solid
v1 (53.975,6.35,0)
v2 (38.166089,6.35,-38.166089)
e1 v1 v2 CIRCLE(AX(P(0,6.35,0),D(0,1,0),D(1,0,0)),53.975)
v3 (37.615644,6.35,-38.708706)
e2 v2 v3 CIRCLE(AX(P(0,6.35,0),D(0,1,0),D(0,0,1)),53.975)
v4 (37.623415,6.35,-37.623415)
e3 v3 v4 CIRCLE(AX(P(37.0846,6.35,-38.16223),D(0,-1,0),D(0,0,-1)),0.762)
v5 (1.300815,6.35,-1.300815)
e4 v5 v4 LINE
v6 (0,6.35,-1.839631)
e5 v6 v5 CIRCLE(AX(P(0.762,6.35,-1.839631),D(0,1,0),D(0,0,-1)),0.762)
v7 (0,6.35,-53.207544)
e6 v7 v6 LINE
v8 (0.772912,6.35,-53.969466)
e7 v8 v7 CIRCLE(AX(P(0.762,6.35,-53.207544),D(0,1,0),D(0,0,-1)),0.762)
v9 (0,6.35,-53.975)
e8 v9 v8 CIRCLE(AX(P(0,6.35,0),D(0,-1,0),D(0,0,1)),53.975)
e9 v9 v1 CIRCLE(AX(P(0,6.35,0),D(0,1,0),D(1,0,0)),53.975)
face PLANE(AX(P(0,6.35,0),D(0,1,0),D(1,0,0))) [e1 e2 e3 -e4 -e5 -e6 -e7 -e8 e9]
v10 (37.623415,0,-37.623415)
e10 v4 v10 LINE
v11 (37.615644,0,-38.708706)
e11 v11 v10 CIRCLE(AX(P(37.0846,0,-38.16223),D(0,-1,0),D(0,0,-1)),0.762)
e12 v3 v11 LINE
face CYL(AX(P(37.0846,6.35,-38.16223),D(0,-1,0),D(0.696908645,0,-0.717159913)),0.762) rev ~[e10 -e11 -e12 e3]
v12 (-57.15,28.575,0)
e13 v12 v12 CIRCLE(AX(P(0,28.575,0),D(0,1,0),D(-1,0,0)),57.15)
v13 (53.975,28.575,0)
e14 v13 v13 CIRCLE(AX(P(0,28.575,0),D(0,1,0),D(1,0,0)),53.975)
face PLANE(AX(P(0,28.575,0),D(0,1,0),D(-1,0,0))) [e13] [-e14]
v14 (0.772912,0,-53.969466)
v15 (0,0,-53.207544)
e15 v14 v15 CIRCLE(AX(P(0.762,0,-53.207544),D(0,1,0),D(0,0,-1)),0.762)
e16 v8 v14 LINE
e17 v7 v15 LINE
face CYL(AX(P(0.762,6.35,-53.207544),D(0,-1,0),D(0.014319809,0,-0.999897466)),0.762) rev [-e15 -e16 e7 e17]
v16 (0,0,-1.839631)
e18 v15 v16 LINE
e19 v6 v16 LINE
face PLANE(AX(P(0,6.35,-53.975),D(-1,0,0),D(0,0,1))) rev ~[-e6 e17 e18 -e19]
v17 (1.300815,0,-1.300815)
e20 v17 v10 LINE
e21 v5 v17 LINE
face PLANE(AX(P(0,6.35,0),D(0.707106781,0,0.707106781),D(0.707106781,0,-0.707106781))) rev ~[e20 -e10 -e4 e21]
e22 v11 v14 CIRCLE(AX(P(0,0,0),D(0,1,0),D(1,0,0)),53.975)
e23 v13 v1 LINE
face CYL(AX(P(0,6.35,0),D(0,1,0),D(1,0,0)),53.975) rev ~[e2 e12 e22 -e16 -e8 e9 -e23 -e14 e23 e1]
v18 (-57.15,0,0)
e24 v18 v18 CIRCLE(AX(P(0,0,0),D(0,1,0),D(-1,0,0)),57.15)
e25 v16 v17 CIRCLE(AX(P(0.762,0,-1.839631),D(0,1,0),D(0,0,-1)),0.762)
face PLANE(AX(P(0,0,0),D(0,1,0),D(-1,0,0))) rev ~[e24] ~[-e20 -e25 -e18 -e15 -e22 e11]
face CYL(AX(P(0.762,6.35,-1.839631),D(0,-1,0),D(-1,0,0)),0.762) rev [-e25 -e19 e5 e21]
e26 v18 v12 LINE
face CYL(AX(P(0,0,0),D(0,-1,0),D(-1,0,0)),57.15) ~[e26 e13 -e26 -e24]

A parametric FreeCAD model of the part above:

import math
import FreeCAD as App
import Part
import Sketcher
Q = App.Units.Quantity


def edges_at(feature, points):
    """Names of the edges that pass closest to the given points."""
    edges = feature.Shape.Edges
    near = lambda p: min(range(len(edges)), key=lambda i: edges[i].distToShape(Part.Vertex(*p))[0])
    return sorted({f"Edge{near(p) + 1}" for p in points})

doc = App.newDocument("Part")
body = doc.addObject("PartDesign::Body", "Body")

# Sketch on XZ plane
sketch1 = doc.addObject("Sketcher::SketchObject", "Sketch")
body.addObject(sketch1)
sketch1.AttachmentSupport = (doc.XZ_Plane, [""])
sketch1.MapMode = "FlatFace"
sketch1.addGeometry(Part.Circle(App.Vector(0, 0, 0), App.Vector(0, 0, 1), 57.15), False)
sketch1.addConstraint([
    Sketcher.Constraint("Coincident", 0, 3, -1, 1),
    Sketcher.Constraint("Diameter", 0, Q("4.5 in")),
])
pad1 = doc.addObject("PartDesign::Pad", "Pad")
body.addObject(pad1)
pad1.Profile = sketch1
pad1.Length = Q("1.125 in")
pad1.Reversed = True

# Sketch on XZ plane
sketch2 = doc.addObject("Sketcher::SketchObject", "Sketch001")
body.addObject(sketch2)
sketch2.AttachmentSupport = (doc.XZ_Plane, [""])
sketch2.MapMode = "FlatFace"
sketch2.AttachmentOffset = App.Placement(App.Vector(0, 0, -1.125 * 25.4), App.Rotation())
sketch2.addGeometry(Part.Circle(App.Vector(0, 0, 0), App.Vector(0, 0, 1), 53.975), False)
sketch2.addConstraint([
    Sketcher.Constraint("Coincident", 0, 3, -1, 1),
    Sketcher.Constraint("Diameter", 0, Q("4.25 in")),
])
pocket1 = doc.addObject("PartDesign::Pocket", "Pocket")
body.addObject(pocket1)
pocket1.Profile = sketch2
pocket1.Length = Q("0.875 in")
pocket1.Reversed = True

# Sketch on XZ plane
sketch3 = doc.addObject("Sketcher::SketchObject", "Sketch002")
body.addObject(sketch3)
sketch3.AttachmentSupport = (doc.XZ_Plane, [""])
sketch3.MapMode = "FlatFace"
sketch3.AttachmentOffset = App.Placement(App.Vector(0, 0, -0.25 * 25.4), App.Rotation())
sketch3.addGeometry([
    Part.ArcOfCircle(Part.Circle(App.Vector(0, 0, 0), App.Vector(0, 0, 1), 53.975), math.radians(-90), math.radians(-45)),
    Part.LineSegment(App.Vector(0, -53.975, 0), App.Vector(0, 0, 0)),
    Part.LineSegment(App.Vector(0, 0, 0), App.Vector(38.166089, -38.166089, 0)),
], False)
sketch3.addConstraint([
    Sketcher.Constraint("Coincident", 0, 1, 1, 1),
    Sketcher.Constraint("Coincident", 1, 2, 2, 1),
    Sketcher.Constraint("Coincident", 2, 2, 0, 2),
    Sketcher.Constraint("Vertical", 1),
    Sketcher.Constraint("Coincident", 0, 3, -1, 1),
    Sketcher.Constraint("Coincident", 1, 2, -1, 1),
    Sketcher.Constraint("Angle", 2, Q("-45 deg")),
    Sketcher.Constraint("Radius", 0, Q("2.125 in")),
])
pocket2 = doc.addObject("PartDesign::Pocket", "Pocket001")
body.addObject(pocket2)
pocket2.Profile = sketch3
pocket2.Length = Q("0.875 in")
pocket2.Reversed = True
doc.recompute()

fillet = doc.addObject("PartDesign::Fillet", "Fillet")
body.addObject(fillet)
fillet.Base = (pocket2, edges_at(pocket2, [(0, 3.175, 0), (0, 3.175, -53.975), (38.166, 3.175, -38.166)]))
fillet.Radius = Q("0.03 in")

doc.recompute()
